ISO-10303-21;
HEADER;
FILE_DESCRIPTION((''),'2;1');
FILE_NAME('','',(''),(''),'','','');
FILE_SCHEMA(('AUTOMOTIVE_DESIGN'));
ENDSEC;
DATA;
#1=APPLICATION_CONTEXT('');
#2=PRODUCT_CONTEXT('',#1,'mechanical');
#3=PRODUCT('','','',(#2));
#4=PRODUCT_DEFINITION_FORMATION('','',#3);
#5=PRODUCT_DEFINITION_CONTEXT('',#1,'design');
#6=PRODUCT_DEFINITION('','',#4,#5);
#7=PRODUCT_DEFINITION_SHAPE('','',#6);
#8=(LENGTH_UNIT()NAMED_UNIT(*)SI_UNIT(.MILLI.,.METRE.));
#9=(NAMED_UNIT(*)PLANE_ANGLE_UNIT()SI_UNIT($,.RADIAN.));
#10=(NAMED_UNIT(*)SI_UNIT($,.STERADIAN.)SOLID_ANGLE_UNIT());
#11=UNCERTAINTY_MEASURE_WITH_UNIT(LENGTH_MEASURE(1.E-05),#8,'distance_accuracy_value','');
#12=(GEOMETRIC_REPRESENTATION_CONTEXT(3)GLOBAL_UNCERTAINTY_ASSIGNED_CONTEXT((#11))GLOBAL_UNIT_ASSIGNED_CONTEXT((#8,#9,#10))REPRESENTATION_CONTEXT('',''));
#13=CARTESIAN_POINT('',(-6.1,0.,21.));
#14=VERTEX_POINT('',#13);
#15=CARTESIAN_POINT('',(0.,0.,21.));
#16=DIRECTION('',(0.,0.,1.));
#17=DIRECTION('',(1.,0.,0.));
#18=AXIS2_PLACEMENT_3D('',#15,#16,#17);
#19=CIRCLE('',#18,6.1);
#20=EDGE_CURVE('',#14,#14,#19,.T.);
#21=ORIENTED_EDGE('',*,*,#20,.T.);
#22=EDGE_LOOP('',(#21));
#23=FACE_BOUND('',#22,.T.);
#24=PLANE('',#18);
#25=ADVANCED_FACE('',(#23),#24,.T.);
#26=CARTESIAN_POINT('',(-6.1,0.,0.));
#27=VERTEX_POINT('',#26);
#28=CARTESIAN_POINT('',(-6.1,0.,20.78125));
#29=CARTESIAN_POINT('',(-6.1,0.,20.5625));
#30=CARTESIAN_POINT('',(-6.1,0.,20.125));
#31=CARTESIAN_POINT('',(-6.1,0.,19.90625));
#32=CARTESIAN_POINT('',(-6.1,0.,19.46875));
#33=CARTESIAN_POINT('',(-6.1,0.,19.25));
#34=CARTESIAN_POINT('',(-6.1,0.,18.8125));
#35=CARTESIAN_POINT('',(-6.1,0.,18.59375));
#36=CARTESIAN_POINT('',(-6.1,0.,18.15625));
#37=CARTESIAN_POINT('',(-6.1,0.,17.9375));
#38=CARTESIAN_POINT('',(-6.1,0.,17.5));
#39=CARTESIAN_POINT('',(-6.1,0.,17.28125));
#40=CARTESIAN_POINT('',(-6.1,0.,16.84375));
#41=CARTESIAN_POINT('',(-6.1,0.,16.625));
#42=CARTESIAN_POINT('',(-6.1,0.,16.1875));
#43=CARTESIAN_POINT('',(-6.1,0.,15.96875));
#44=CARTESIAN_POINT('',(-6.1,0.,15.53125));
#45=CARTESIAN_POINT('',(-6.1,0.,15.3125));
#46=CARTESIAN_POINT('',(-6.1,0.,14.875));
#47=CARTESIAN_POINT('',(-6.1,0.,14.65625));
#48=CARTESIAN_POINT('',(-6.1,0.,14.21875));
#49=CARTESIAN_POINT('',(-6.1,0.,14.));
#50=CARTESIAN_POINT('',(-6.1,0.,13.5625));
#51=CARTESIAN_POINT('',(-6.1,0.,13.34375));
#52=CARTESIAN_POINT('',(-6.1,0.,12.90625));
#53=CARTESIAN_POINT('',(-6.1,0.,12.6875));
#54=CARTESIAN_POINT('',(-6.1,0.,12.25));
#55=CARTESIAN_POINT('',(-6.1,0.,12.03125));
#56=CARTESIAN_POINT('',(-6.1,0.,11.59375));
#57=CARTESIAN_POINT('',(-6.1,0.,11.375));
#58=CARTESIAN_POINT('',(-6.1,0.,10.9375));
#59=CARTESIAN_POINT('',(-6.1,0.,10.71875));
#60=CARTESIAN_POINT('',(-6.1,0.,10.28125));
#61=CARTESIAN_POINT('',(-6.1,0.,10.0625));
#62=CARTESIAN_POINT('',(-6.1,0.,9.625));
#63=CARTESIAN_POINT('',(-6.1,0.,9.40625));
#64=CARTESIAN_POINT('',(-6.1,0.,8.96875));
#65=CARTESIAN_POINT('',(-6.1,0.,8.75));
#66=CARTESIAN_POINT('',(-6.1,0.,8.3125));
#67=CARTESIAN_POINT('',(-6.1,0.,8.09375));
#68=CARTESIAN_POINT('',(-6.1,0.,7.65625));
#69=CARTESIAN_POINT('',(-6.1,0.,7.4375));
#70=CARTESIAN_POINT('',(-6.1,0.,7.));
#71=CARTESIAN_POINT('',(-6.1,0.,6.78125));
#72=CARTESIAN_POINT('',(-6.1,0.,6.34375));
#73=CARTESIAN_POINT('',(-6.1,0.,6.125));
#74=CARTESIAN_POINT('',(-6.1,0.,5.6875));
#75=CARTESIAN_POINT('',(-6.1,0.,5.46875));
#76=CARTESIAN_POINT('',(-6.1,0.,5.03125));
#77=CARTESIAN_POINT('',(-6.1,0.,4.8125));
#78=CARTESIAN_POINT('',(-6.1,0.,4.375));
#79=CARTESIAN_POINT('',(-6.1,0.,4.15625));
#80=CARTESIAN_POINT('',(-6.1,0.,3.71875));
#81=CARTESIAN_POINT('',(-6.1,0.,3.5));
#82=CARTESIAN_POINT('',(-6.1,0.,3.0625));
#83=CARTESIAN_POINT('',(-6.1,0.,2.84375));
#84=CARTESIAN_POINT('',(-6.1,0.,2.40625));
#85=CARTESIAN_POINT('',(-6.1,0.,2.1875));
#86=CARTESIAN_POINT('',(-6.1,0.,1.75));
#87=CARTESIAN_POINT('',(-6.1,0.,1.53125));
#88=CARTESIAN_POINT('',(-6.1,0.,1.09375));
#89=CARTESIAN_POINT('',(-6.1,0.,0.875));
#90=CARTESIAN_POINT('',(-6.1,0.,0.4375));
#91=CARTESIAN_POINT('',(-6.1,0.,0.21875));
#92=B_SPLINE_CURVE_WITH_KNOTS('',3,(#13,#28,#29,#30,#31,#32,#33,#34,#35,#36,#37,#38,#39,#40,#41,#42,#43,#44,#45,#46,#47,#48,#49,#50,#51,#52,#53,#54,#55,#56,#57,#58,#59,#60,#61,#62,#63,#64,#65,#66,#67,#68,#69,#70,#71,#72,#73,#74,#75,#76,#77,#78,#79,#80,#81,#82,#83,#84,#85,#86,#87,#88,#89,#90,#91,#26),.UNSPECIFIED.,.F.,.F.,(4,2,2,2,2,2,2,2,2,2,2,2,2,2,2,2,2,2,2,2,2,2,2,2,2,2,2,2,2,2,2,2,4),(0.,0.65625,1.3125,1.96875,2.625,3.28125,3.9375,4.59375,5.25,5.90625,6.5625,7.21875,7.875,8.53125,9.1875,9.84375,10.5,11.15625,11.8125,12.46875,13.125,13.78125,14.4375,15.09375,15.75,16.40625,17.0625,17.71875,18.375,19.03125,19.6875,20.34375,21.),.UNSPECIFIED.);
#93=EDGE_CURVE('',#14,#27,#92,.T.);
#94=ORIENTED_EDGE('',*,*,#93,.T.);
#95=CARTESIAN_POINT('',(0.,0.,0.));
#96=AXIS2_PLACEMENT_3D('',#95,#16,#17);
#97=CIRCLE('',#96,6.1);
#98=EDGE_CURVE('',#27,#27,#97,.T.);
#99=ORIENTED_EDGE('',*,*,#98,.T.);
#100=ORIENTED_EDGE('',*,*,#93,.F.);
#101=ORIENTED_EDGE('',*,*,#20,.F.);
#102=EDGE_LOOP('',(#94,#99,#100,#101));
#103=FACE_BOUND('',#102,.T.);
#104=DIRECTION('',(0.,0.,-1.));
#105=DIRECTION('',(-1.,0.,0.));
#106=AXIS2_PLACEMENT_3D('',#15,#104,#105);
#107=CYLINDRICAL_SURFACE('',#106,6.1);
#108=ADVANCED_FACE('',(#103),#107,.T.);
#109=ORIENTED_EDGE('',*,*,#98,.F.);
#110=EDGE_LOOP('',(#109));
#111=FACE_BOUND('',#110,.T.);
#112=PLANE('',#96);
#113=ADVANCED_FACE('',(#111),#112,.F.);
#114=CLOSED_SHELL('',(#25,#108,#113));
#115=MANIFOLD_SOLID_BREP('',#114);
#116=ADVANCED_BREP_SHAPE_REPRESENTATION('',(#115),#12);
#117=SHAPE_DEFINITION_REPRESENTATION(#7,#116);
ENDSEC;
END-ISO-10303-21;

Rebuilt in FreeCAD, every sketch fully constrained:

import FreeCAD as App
import Part
import Sketcher
from FreeCAD import Vector

doc = App.newDocument("Part")
params = doc.addObject("Spreadsheet::Sheet", "Params")
for row, (alias, value) in enumerate([
    ("sketch1_diameter", "12.2 mm"),
    ("pad1_length", "21 mm"),
], start=1):
    params.set(f"A{row}", alias)
    params.set(f"B{row}", "=" + value)
    params.setAlias(f"B{row}", alias)

body = doc.addObject("PartDesign::Body", "Body")

# Sketch on XY plane
sketch1 = body.newObject("Sketcher::SketchObject", "Sketch")
sketch1.AttachmentSupport = (doc.getObject("XY_Plane"), [""])
sketch1.MapMode = "FlatFace"
sketch1.addGeometry(Part.Circle(Vector(0, 0, 0), Vector(0, 0, 1), 6), False)
sketch1.addConstraint([
    Sketcher.Constraint("Coincident", 0, 3, -1, 1),
    Sketcher.Constraint("Diameter", 0, 12.2),
])
sketch1.setExpression("Constraints[1]", "Params.sketch1_diameter")
pad1 = body.newObject("PartDesign::Pad", "Pad")
pad1.Profile = sketch1
pad1.setExpression("Length", "Params.pad1_length")

doc.recompute()
